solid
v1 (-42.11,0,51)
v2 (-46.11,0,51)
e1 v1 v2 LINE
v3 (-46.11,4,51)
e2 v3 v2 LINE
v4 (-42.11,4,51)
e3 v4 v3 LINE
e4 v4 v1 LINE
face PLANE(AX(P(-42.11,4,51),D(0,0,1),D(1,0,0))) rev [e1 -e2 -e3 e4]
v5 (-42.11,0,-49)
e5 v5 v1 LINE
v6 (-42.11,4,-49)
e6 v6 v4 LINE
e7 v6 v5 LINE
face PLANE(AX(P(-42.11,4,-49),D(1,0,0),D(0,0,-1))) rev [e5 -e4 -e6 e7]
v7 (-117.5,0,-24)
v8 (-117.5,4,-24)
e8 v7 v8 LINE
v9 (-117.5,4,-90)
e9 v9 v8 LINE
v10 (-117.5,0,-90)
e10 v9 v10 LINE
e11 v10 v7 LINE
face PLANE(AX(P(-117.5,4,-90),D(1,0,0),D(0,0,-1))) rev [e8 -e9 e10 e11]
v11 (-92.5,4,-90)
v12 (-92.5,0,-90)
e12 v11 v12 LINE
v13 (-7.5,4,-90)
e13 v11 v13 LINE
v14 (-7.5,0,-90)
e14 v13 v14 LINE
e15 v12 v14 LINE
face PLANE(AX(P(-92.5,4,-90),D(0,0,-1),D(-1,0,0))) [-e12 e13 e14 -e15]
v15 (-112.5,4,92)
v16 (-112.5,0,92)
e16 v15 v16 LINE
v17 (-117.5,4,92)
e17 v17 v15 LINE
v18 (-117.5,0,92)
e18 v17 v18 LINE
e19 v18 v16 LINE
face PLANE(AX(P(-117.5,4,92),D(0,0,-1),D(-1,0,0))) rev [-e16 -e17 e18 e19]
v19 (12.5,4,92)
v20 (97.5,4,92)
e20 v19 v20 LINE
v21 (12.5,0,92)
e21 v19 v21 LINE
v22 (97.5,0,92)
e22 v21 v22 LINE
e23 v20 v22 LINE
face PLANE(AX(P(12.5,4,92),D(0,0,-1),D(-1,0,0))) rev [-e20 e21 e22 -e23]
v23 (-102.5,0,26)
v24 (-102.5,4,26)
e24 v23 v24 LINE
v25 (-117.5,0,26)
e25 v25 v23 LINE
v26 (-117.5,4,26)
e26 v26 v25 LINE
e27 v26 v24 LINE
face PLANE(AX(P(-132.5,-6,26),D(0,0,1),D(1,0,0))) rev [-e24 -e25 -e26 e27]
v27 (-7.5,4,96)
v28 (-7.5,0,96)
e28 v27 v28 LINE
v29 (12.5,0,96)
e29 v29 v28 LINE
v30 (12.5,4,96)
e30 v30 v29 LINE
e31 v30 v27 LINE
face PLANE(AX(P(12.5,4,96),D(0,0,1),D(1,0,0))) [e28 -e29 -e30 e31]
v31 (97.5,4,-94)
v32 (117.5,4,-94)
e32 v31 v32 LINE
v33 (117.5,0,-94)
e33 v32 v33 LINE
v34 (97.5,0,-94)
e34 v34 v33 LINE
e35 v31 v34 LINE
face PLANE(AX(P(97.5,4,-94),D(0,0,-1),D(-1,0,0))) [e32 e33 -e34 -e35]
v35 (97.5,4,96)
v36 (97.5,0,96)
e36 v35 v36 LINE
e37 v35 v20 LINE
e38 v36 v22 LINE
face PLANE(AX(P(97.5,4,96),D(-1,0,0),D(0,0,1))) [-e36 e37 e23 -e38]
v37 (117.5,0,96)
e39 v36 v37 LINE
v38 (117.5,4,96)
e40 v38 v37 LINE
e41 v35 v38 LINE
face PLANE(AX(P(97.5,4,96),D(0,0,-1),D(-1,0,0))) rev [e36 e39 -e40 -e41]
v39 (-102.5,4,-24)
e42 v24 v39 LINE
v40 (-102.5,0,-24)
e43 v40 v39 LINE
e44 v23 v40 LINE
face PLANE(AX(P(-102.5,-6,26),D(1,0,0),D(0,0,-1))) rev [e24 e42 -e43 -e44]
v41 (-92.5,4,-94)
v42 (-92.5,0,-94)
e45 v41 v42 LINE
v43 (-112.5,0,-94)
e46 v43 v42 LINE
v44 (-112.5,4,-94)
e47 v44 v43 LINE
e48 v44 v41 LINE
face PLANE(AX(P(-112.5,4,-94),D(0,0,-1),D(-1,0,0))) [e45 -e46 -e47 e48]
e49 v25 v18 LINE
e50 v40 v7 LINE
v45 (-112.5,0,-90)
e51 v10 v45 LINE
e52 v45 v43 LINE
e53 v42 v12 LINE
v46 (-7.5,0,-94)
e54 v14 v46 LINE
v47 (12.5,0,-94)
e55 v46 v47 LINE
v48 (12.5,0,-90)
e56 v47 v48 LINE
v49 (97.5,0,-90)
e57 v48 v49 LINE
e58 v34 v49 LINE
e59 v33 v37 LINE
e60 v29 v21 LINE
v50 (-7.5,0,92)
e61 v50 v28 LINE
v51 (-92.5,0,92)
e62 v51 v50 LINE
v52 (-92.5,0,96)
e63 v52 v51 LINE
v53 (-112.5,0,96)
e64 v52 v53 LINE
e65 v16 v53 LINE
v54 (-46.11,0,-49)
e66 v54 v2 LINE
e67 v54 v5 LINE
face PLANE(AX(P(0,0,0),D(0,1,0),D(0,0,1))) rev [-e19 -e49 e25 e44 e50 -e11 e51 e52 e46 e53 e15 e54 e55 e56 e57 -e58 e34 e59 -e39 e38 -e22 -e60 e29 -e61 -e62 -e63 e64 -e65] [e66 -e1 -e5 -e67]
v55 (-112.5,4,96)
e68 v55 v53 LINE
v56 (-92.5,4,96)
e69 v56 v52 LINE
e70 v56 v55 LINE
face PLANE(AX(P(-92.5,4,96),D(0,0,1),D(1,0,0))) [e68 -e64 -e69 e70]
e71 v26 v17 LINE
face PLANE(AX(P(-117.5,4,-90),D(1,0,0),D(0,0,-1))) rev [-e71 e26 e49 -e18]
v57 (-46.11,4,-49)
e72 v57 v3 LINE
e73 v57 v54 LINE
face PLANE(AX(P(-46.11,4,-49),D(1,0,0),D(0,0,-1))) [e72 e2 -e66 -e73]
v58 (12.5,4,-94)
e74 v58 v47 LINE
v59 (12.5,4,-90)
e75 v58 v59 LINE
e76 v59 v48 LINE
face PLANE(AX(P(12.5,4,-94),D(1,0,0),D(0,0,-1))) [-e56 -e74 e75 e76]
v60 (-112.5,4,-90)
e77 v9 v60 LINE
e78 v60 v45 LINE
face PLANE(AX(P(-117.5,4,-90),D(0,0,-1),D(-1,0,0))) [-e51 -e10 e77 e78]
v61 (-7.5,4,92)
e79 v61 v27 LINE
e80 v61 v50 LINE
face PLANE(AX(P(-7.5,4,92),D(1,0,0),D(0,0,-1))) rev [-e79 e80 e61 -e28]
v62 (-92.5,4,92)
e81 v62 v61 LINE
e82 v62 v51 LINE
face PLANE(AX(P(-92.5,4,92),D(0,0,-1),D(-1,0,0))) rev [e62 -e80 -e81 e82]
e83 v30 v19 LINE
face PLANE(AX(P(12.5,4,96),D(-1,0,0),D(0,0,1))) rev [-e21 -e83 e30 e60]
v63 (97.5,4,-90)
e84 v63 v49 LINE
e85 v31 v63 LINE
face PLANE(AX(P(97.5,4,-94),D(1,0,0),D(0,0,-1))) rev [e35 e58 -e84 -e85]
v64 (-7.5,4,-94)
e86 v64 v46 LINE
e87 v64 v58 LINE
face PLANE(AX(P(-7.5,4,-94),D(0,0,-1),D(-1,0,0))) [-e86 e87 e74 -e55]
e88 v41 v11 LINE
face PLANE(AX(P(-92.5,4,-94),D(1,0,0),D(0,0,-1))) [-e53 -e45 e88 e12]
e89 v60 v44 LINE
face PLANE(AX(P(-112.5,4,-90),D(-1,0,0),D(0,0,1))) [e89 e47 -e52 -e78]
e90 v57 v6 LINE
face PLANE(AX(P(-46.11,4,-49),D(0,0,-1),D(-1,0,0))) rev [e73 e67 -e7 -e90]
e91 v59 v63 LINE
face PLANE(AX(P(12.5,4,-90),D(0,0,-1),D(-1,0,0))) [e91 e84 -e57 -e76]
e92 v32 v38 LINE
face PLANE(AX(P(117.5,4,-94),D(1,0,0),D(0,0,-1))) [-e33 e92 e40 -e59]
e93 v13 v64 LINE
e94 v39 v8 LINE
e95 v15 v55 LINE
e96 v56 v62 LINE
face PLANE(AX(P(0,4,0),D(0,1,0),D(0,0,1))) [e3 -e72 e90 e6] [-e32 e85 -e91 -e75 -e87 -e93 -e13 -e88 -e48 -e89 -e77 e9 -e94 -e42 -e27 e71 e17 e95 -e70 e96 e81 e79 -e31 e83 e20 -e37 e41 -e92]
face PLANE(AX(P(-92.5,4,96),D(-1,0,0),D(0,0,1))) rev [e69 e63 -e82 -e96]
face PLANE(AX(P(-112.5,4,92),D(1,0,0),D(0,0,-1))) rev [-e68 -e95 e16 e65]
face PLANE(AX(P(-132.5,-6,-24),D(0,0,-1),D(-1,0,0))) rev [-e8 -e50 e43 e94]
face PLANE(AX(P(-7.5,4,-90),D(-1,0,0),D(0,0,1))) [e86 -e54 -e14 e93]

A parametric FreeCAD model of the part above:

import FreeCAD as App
import Part
import Sketcher

V = App.Vector
Q = App.Units.Quantity


def add_polygon(sketch, points):
    """Adds a closed chain of lines whose ends are joined by coincident constraints."""
    first, n = sketch.GeometryCount, len(points)
    for a, b in zip(points, points[1:] + points[:1]):
        sketch.addGeometry(Part.LineSegment(App.Vector(*a, 0), App.Vector(*b, 0)), False)
    for i in range(n):
        sketch.addConstraint(Sketcher.Constraint("Coincident", first + i, 2, first + (i + 1) % n, 1))

doc = App.newDocument("Part")
body = doc.addObject("PartDesign::Body", "Body")

sketch1 = body.newObject("Sketcher::SketchObject", "Sketch")
sketch1.AttachmentSupport = (doc.getObject("XZ_Plane"), [""])
sketch1.MapMode = "FlatFace"
add_polygon(sketch1, [(-92.5, -94), (-112.5, -94), (-112.5, -90), (-117.5, -90), (-117.5, 92), (-112.5, 92), (-112.5, 96), (-92.5, 96), (-92.5, 92), (-7.5, 92), (-7.5, 96), (12.5, 96), (12.5, 92), (97.5, 92), (97.5, 96), (117.5, 96), (117.5, -94), (97.5, -94), (97.5, -90), (12.5, -90), (12.5, -94), (-7.5, -94), (-7.5, -90), (-92.5, -90)])
add_polygon(sketch1, [(-46.1, 51), (-46.1, -49), (-42.1, -49), (-42.1, 51)])
sketch1.addConstraint([
    Sketcher.Constraint("Horizontal", 0),
    Sketcher.Constraint("Vertical", 1),
    Sketcher.Constraint("Horizontal", 2),
    Sketcher.Constraint("Vertical", 3),
    Sketcher.Constraint("Horizontal", 4),
    Sketcher.Constraint("Vertical", 5),
    Sketcher.Constraint("Horizontal", 6),
    Sketcher.Constraint("Vertical", 7),
    Sketcher.Constraint("Horizontal", 8),
    Sketcher.Constraint("Vertical", 9),
    Sketcher.Constraint("Horizontal", 10),
    Sketcher.Constraint("Vertical", 11),
    Sketcher.Constraint("Horizontal", 12),
    Sketcher.Constraint("Vertical", 13),
    Sketcher.Constraint("Horizontal", 14),
    Sketcher.Constraint("Vertical", 15),
    Sketcher.Constraint("Horizontal", 16),
    Sketcher.Constraint("Vertical", 17),
    Sketcher.Constraint("Horizontal", 18),
    Sketcher.Constraint("Vertical", 19),
    Sketcher.Constraint("Horizontal", 20),
    Sketcher.Constraint("Vertical", 21),
    Sketcher.Constraint("Horizontal", 22),
    Sketcher.Constraint("Vertical", 23),
    Sketcher.Constraint("Vertical", 24),
    Sketcher.Constraint("Horizontal", 25),
    Sketcher.Constraint("Vertical", 26),
    Sketcher.Constraint("Horizontal", 27),
    Sketcher.Constraint("Horizontal", 4, 2, 7, 2),
    Sketcher.Constraint("Horizontal", 6, 2, 9, 2),
    Sketcher.Constraint("Horizontal", 8, 2, 11, 2),
    Sketcher.Constraint("Horizontal", 10, 2, 13, 2),
    Sketcher.Constraint("Horizontal", 0, 2, 15, 2),
    Sketcher.Constraint("Horizontal", 2, 2, 17, 2),
    Sketcher.Constraint("Horizontal", 16, 2, 19, 2),
    Sketcher.Constraint("Horizontal", 18, 2, 21, 2),
    Sketcher.Constraint("Vertical", 1, 2, 4, 2),
    Sketcher.Constraint("Vertical", 13, 2, 16, 2),
    Sketcher.Constraint("Vertical", 11, 2, 18, 2),
    Sketcher.Constraint("Vertical", 9, 2, 20, 2),
    Sketcher.Constraint("Vertical", 7, 2, 22, 2),
    Sketcher.Constraint("Equal", 6, 10),
    Sketcher.Constraint("Equal", 8, 12),
    Sketcher.Constraint("Equal", 10, 14),
    Sketcher.Constraint("Equal", 27, 1),
    Sketcher.Constraint("Equal", 1, 5),
    Sketcher.Constraint("DistanceX", 0, 2, 0, 1, Q("20 mm")),
    Sketcher.Constraint("DistanceX", 2, 2, 2, 1, Q("5 mm")),
    Sketcher.Constraint("DistanceX", 8, 1, 8, 2, Q("85 mm")),
    Sketcher.Constraint("DistanceX", 25, 1, 25, 2, Q("4 mm")),
    Sketcher.Constraint("DistanceY", 3, 1, 3, 2, Q("182 mm")),
    Sketcher.Constraint("DistanceY", 24, 2, 24, 1, Q("100 mm")),
    Sketcher.Constraint("DistanceY", 0, 2, -1, 1, Q("94 mm")),
    Sketcher.Constraint("DistanceY", 24, 2, -1, 1, Q("49 mm")),
    Sketcher.Constraint("DistanceX", 0, 2, -1, 1, Q("112.5 mm")),
    Sketcher.Constraint("DistanceX", 24, 2, -1, 1, Q("46.11 mm")),
])
pad1 = body.newObject("PartDesign::Pad", "Pad")
pad1.Profile = sketch1
pad1.Length = 4
pad1.Reversed = True

sketch2 = body.newObject("Sketcher::SketchObject", "Sketch001")
sketch2.AttachmentSupport = (doc.getObject("XZ_Plane"), [""])
sketch2.MapMode = "FlatFace"
sketch2.AttachmentOffset = App.Placement(V(0, 0, -4), App.Rotation())
add_polygon(sketch2, [(-132, -24), (-132, 26), (-102, 26), (-102, -24)])
sketch2.addConstraint([
    Sketcher.Constraint("Vertical", 0),
    Sketcher.Constraint("Horizontal", 1),
    Sketcher.Constraint("Vertical", 2),
    Sketcher.Constraint("Horizontal", 3),
    Sketcher.Constraint("DistanceX", 1, 1, 1, 2, Q("30 mm")),
    Sketcher.Constraint("DistanceY", 0, 1, 0, 2, Q("50 mm")),
    Sketcher.Constraint("DistanceY", -1, 1, 0, 2, Q("26 mm")),
    Sketcher.Constraint("DistanceX", 0, 2, -1, 1, Q("132.5 mm")),
])
pocket1 = body.newObject("PartDesign::Pocket", "Pocket")
pocket1.Profile = sketch2
pocket1.Length = 10
pocket1.Reversed = True

doc.recompute()
